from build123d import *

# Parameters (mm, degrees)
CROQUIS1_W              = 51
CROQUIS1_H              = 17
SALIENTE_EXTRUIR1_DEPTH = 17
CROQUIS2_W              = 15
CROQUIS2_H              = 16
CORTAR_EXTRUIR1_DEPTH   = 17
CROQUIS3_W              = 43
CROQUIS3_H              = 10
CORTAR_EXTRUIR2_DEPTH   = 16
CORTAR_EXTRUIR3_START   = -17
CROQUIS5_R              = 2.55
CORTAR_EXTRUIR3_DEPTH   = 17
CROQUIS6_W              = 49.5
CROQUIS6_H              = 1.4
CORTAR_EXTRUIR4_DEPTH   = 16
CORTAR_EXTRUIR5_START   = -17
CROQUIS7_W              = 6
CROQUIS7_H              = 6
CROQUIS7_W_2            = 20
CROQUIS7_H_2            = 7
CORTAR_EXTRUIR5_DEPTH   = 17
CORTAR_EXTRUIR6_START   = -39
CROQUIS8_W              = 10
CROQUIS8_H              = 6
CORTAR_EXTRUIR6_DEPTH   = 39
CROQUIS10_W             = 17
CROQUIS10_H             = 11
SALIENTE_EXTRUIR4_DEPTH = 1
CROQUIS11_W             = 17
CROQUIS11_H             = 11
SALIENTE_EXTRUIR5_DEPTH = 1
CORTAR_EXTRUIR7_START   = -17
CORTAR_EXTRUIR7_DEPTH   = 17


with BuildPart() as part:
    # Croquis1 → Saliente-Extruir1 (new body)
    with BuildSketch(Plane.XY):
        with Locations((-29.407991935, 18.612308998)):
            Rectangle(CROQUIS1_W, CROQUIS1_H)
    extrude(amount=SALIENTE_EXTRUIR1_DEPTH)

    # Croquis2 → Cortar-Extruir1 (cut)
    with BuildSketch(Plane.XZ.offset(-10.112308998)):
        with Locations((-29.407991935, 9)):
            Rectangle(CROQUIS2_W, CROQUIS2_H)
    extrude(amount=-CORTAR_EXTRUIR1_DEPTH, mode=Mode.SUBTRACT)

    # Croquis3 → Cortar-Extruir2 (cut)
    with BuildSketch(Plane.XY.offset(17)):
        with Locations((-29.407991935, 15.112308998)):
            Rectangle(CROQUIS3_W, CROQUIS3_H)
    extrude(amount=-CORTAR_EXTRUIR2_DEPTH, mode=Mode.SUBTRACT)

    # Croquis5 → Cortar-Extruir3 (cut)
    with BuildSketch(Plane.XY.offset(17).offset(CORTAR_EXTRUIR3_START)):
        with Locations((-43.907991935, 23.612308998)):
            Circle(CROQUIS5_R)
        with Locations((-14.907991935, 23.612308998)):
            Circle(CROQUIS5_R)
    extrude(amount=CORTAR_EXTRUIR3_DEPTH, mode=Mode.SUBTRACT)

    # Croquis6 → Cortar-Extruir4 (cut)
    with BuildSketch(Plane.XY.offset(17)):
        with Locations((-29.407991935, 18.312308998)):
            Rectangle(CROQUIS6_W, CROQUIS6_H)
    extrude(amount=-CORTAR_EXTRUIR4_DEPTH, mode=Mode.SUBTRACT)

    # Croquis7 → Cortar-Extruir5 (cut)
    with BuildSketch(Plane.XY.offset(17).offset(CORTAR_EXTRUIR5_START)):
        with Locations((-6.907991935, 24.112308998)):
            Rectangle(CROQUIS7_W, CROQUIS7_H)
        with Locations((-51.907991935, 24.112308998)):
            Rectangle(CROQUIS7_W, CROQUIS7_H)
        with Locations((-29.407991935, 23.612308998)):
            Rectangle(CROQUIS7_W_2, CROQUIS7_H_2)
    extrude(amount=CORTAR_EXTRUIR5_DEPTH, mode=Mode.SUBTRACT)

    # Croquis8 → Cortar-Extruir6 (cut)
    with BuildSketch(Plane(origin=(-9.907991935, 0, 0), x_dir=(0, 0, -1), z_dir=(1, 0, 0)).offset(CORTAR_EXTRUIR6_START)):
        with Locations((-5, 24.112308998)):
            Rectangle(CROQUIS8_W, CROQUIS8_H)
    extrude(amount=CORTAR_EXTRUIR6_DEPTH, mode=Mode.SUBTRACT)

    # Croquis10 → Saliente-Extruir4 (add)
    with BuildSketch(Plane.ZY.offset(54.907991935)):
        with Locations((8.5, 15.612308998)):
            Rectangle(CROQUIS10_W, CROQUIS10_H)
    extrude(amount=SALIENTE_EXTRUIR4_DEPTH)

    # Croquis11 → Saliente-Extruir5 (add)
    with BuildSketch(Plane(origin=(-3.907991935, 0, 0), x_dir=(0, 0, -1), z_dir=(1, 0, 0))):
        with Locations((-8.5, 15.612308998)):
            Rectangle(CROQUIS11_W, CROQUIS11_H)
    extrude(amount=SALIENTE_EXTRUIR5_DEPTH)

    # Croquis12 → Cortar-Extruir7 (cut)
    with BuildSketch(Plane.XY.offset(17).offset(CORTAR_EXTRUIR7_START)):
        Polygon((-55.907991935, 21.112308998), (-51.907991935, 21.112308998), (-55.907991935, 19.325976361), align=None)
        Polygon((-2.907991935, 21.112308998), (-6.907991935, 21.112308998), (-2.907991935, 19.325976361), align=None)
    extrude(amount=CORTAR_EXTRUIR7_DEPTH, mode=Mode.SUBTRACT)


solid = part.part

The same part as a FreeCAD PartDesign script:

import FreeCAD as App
import Part
import Sketcher
from FreeCAD import Vector


def add_polygon(sketch, points):
    """Adds a closed chain of lines whose ends are joined by coincident constraints."""
    first, n = sketch.GeometryCount, len(points)
    for a, b in zip(points, points[1:] + points[:1]):
        sketch.addGeometry(Part.LineSegment(App.Vector(*a, 0), App.Vector(*b, 0)), False)
    for i in range(n):
        sketch.addConstraint(Sketcher.Constraint("Coincident", first + i, 2, first + (i + 1) % n, 1))

doc = App.newDocument("Part")
params = doc.addObject("Spreadsheet::Sheet", "Params")
for row, (alias, value) in enumerate([
    ("sketch1_width", "51 mm"),
    ("sketch1_height", "17 mm"),
    ("pad1_length", "17 mm"),
    ("sketch2_width", "15 mm"),
    ("sketch2_height", "16 mm"),
    ("pocket1_length", "17 mm"),
    ("sketch3_width", "43 mm"),
    ("sketch3_height", "10 mm"),
    ("pocket2_length", "16 mm"),
    ("sketch4_diameter", "5.1 mm"),
    ("pocket3_length", "17 mm"),
    ("sketch5_width", "49.5 mm"),
    ("sketch5_height", "1.4 mm"),
    ("pocket4_length", "16 mm"),
    ("sketch6_width", "6 mm"),
    ("sketch6_width2", "20 mm"),
    ("sketch6_height", "7 mm"),
    ("pocket5_length", "17 mm"),
    ("sketch7_width", "6 mm"),
    ("sketch7_height", "10 mm"),
    ("pocket6_length", "39 mm"),
    ("sketch8_width", "11 mm"),
    ("sketch8_height", "17 mm"),
    ("pad2_length", "1 mm"),
    ("sketch9_width", "11 mm"),
    ("sketch9_height", "17 mm"),
    ("pad3_length", "1 mm"),
    ("sketch10_width", "4 mm"),
    ("pocket7_length", "17 mm"),
], start=1):
    params.set(f"A{row}", alias)
    params.set(f"B{row}", "=" + value)
    params.setAlias(f"B{row}", alias)

body = doc.addObject("PartDesign::Body", "Body")

# Sketch on XY plane
sketch1 = body.newObject("Sketcher::SketchObject", "Sketch")
sketch1.AttachmentSupport = (doc.getObject("XY_Plane"), [""])
sketch1.MapMode = "FlatFace"
add_polygon(sketch1, [(-55, 27), (-55, 10), (-4, 10), (-4, 27)])  # lines 0-3
sketch1.addConstraint(Sketcher.Constraint("Vertical", 0))
sketch1.addConstraint(Sketcher.Constraint("Horizontal", 1))
sketch1.addConstraint(Sketcher.Constraint("Vertical", 2))
sketch1.addConstraint(Sketcher.Constraint("Horizontal", 3))
sketch1.addConstraint(Sketcher.Constraint("DistanceX", 1, 1, 1, 2, 51.0))
sketch1.addConstraint(Sketcher.Constraint("DistanceY", 0, 2, 0, 1, 17.0))
sketch1.addConstraint(Sketcher.Constraint("DistanceX", 0, 2, -1, 1, 54.907992))
sketch1.addConstraint(Sketcher.Constraint("DistanceY", -1, 1, 0, 2, 10.112309))
sketch1.setExpression("Constraints[8]", "Params.sketch1_width")
sketch1.setExpression("Constraints[9]", "Params.sketch1_height")
pad1 = body.newObject("PartDesign::Pad", "Pad")
pad1.Profile = sketch1
pad1.setExpression("Length", "Params.pad1_length")

# Sketch on XZ plane
sketch2 = body.newObject("Sketcher::SketchObject", "Sketch001")
sketch2.AttachmentSupport = (doc.getObject("XZ_Plane"), [""])
sketch2.MapMode = "FlatFace"
sketch2.AttachmentOffset = App.Placement(Vector(0, 0, -10.112309), App.Rotation())
add_polygon(sketch2, [(-37, 17), (-37, 1), (-22, 1), (-22, 17)])  # lines 0-3
sketch2.addConstraint(Sketcher.Constraint("Vertical", 0))
sketch2.addConstraint(Sketcher.Constraint("Horizontal", 1))
sketch2.addConstraint(Sketcher.Constraint("Vertical", 2))
sketch2.addConstraint(Sketcher.Constraint("Horizontal", 3))
sketch2.addConstraint(Sketcher.Constraint("DistanceX", 1, 1, 1, 2, 15.0))
sketch2.addConstraint(Sketcher.Constraint("DistanceY", 0, 2, 0, 1, 16.0))
sketch2.addConstraint(Sketcher.Constraint("DistanceY", -1, 1, 0, 2, 1.0))
sketch2.addConstraint(Sketcher.Constraint("DistanceX", 0, 2, -1, 1, 36.907992))
sketch2.setExpression("Constraints[8]", "Params.sketch2_width")
sketch2.setExpression("Constraints[9]", "Params.sketch2_height")
pocket1 = body.newObject("PartDesign::Pocket", "Pocket")
pocket1.Profile = sketch2
pocket1.setExpression("Length", "Params.pocket1_length")

# Sketch on XY plane
sketch3 = body.newObject("Sketcher::SketchObject", "Sketch002")
sketch3.AttachmentSupport = (doc.getObject("XY_Plane"), [""])
sketch3.MapMode = "FlatFace"
sketch3.AttachmentOffset = App.Placement(Vector(0, 0, 17), App.Rotation())
add_polygon(sketch3, [(-51, 20), (-51, 10), (-8, 10), (-8, 20)])  # lines 0-3
sketch3.addConstraint(Sketcher.Constraint("Vertical", 0))
sketch3.addConstraint(Sketcher.Constraint("Horizontal", 1))
sketch3.addConstraint(Sketcher.Constraint("Vertical", 2))
sketch3.addConstraint(Sketcher.Constraint("Horizontal", 3))
sketch3.addConstraint(Sketcher.Constraint("DistanceX", 1, 1, 1, 2, 43.0))
sketch3.addConstraint(Sketcher.Constraint("DistanceY", 0, 2, 0, 1, 10.0))
sketch3.addConstraint(Sketcher.Constraint("DistanceX", 0, 2, -1, 1, 50.907992))
sketch3.addConstraint(Sketcher.Constraint("DistanceY", -1, 1, 0, 2, 10.112309))
sketch3.setExpression("Constraints[8]", "Params.sketch3_width")
sketch3.setExpression("Constraints[9]", "Params.sketch3_height")
pocket2 = body.newObject("PartDesign::Pocket", "Pocket001")
pocket2.Profile = sketch3
pocket2.setExpression("Length", "Params.pocket2_length")

# Sketch on XY plane
sketch4 = body.newObject("Sketcher::SketchObject", "Sketch003")
sketch4.AttachmentSupport = (doc.getObject("XY_Plane"), [""])
sketch4.MapMode = "FlatFace"
sketch4.addGeometry(Part.Circle(Vector(-43.9, 23.6, 0), Vector(0, 0, 1), 2.5), False)
sketch4.addGeometry(Part.Circle(Vector(-14.9, 23.6, 0), Vector(0, 0, 1), 2.5), False)
sketch4.addConstraint(Sketcher.Constraint("Equal", 0, 1))
sketch4.addConstraint(Sketcher.Constraint("Horizontal", 0, 3, 1, 3))
sketch4.addConstraint(Sketcher.Constraint("Diameter", 0, 5.1))
sketch4.addConstraint(Sketcher.Constraint("DistanceX", 0, 3, 1, 3, 29.0))
sketch4.addConstraint(Sketcher.Constraint("DistanceX", 0, 3, -1, 1, 43.907992))
sketch4.addConstraint(Sketcher.Constraint("DistanceY", -1, 1, 0, 3, 23.612309))
sketch4.setExpression("Constraints[2]", "Params.sketch4_diameter")
pocket3 = body.newObject("PartDesign::Pocket", "Pocket002")
pocket3.Profile = sketch4
pocket3.setExpression("Length", "Params.pocket3_length")
pocket3.Reversed = True

# Sketch on XY plane
sketch5 = body.newObject("Sketcher::SketchObject", "Sketch004")
sketch5.AttachmentSupport = (doc.getObject("XY_Plane"), [""])
sketch5.MapMode = "FlatFace"
sketch5.AttachmentOffset = App.Placement(Vector(0, 0, 17), App.Rotation())
add_polygon(sketch5, [(-54.2, 19), (-54.2, 17.6), (-4.7, 17.6), (-4.7, 19)])  # lines 0-3
sketch5.addConstraint(Sketcher.Constraint("Vertical", 0))
sketch5.addConstraint(Sketcher.Constraint("Horizontal", 1))
sketch5.addConstraint(Sketcher.Constraint("Vertical", 2))
sketch5.addConstraint(Sketcher.Constraint("Horizontal", 3))
sketch5.addConstraint(Sketcher.Constraint("DistanceX", 1, 1, 1, 2, 49.5))
sketch5.addConstraint(Sketcher.Constraint("DistanceY", 0, 2, 0, 1, 1.4))
sketch5.addConstraint(Sketcher.Constraint("DistanceX", 0, 2, -1, 1, 54.157992))
sketch5.addConstraint(Sketcher.Constraint("DistanceY", -1, 1, 0, 2, 17.612309))
sketch5.setExpression("Constraints[8]", "Params.sketch5_width")
sketch5.setExpression("Constraints[9]", "Params.sketch5_height")
pocket4 = body.newObject("PartDesign::Pocket", "Pocket003")
pocket4.Profile = sketch5
pocket4.setExpression("Length", "Params.pocket4_length")

# Sketch on XY plane
sketch6 = body.newObject("Sketcher::SketchObject", "Sketch005")
sketch6.AttachmentSupport = (doc.getObject("XY_Plane"), [""])
sketch6.MapMode = "FlatFace"
add_polygon(sketch6, [(-10, 27), (-10, 21), (-4, 21), (-4, 27)])  # lines 0-3
add_polygon(sketch6, [(-55, 27), (-55, 21), (-49, 21), (-49, 27)])  # lines 4-7
add_polygon(sketch6, [(-39, 27), (-39, 20), (-19, 20), (-19, 27)])  # lines 8-11
sketch6.addConstraint(Sketcher.Constraint("Vertical", 0))
sketch6.addConstraint(Sketcher.Constraint("Horizontal", 1))
sketch6.addConstraint(Sketcher.Constraint("Vertical", 2))
sketch6.addConstraint(Sketcher.Constraint("Horizontal", 3))
sketch6.addConstraint(Sketcher.Constraint("Vertical", 4))
sketch6.addConstraint(Sketcher.Constraint("Horizontal", 5))
sketch6.addConstraint(Sketcher.Constraint("Vertical", 6))
sketch6.addConstraint(Sketcher.Constraint("Horizontal", 7))
sketch6.addConstraint(Sketcher.Constraint("Vertical", 8))
sketch6.addConstraint(Sketcher.Constraint("Horizontal", 9))
sketch6.addConstraint(Sketcher.Constraint("Vertical", 10))
sketch6.addConstraint(Sketcher.Constraint("Horizontal", 11))
sketch6.addConstraint(Sketcher.Constraint("Horizontal", 1, 2, 4, 2))
sketch6.addConstraint(Sketcher.Constraint("Horizontal", 3, 2, 6, 2))
sketch6.addConstraint(Sketcher.Constraint("Horizontal", 7, 2, 10, 2))
sketch6.addConstraint(Sketcher.Constraint("Equal", 3, 5))
sketch6.addConstraint(Sketcher.Constraint("Equal", 7, 0))
sketch6.addConstraint(Sketcher.Constraint("DistanceX", 1, 1, 1, 2, 6.0))
sketch6.addConstraint(Sketcher.Constraint("DistanceX", 9, 1, 9, 2, 20.0))
sketch6.addConstraint(Sketcher.Constraint("DistanceY", 8, 2, 8, 1, 7.0))
sketch6.addConstraint(Sketcher.Constraint("DistanceX", 4, 2, 0, 2, 45.0))
sketch6.addConstraint(Sketcher.Constraint("DistanceX", 5, 2, 8, 2, 9.5))
sketch6.addConstraint(Sketcher.Constraint("DistanceX", 0, 2, -1, 1, 9.907992))
sketch6.addConstraint(Sketcher.Constraint("DistanceY", -1, 1, 0, 2, 21.112309))
sketch6.setExpression("Constraints[29]", "Params.sketch6_width")
sketch6.setExpression("Constraints[30]", "Params.sketch6_width2")
sketch6.setExpression("Constraints[31]", "Params.sketch6_height")
pocket5 = body.newObject("PartDesign::Pocket", "Pocket004")
pocket5.Profile = sketch6
pocket5.setExpression("Length", "Params.pocket5_length")
pocket5.Reversed = True

# Sketch on YZ plane
sketch7 = body.newObject("Sketcher::SketchObject", "Sketch006")
sketch7.AttachmentSupport = (doc.getObject("YZ_Plane"), [""])
sketch7.MapMode = "FlatFace"
sketch7.AttachmentOffset = App.Placement(Vector(0, 0, -48.907992), App.Rotation())
add_polygon(sketch7, [(27, 10), (21, 10), (21, 0), (27, 0)])  # lines 0-3
sketch7.addConstraint(Sketcher.Constraint("Horizontal", 0))
sketch7.addConstraint(Sketcher.Constraint("Vertical", 1))
sketch7.addConstraint(Sketcher.Constraint("Horizontal", 2))
sketch7.addConstraint(Sketcher.Constraint("Vertical", 3))
sketch7.addConstraint(Sketcher.Constraint("PointOnObject", 1, 2, -1))
sketch7.addConstraint(Sketcher.Constraint("DistanceX", 0, 2, 0, 1, 6.0))
sketch7.addConstraint(Sketcher.Constraint("DistanceY", 1, 2, 1, 1, 10.0))
sketch7.addConstraint(Sketcher.Constraint("DistanceX", -1, 1, 0, 2, 21.112309))
sketch7.setExpression("Constraints[9]", "Params.sketch7_width")
sketch7.setExpression("Constraints[10]", "Params.sketch7_height")
pocket6 = body.newObject("PartDesign::Pocket", "Pocket005")
pocket6.Profile = sketch7
pocket6.setExpression("Length", "Params.pocket6_length")
pocket6.Reversed = True

# Sketch on YZ plane
sketch8 = body.newObject("Sketcher::SketchObject", "Sketch007")
sketch8.AttachmentSupport = (doc.getObject("YZ_Plane"), [""])
sketch8.MapMode = "FlatFace"
sketch8.AttachmentOffset = App.Placement(Vector(0, 0, -54.907992), App.Rotation())
add_polygon(sketch8, [(21, 0), (10, 0), (10, 17), (21, 17)])  # lines 0-3
sketch8.addConstraint(Sketcher.Constraint("Horizontal", 0))
sketch8.addConstraint(Sketcher.Constraint("Vertical", 1))
sketch8.addConstraint(Sketcher.Constraint("Horizontal", 2))
sketch8.addConstraint(Sketcher.Constraint("Vertical", 3))
sketch8.addConstraint(Sketcher.Constraint("PointOnObject", 0, 2, -1))
sketch8.addConstraint(Sketcher.Constraint("DistanceX", 0, 2, 0, 1, 11.0))
sketch8.addConstraint(Sketcher.Constraint("DistanceY", 1, 1, 1, 2, 17.0))
sketch8.addConstraint(Sketcher.Constraint("DistanceX", -1, 1, 0, 2, 10.112309))
sketch8.setExpression("Constraints[9]", "Params.sketch8_width")
sketch8.setExpression("Constraints[10]", "Params.sketch8_height")
pad2 = body.newObject("PartDesign::Pad", "Pad001")
pad2.Profile = sketch8
pad2.setExpression("Length", "Params.pad2_length")
pad2.Reversed = True

# Sketch on YZ plane
sketch9 = body.newObject("Sketcher::SketchObject", "Sketch008")
sketch9.AttachmentSupport = (doc.getObject("YZ_Plane"), [""])
sketch9.MapMode = "FlatFace"
sketch9.AttachmentOffset = App.Placement(Vector(0, 0, -3.907992), App.Rotation())
add_polygon(sketch9, [(21, 17), (10, 17), (10, 0), (21, 0)])  # lines 0-3
sketch9.addConstraint(Sketcher.Constraint("Horizontal", 0))
sketch9.addConstraint(Sketcher.Constraint("Vertical", 1))
sketch9.addConstraint(Sketcher.Constraint("Horizontal", 2))
sketch9.addConstraint(Sketcher.Constraint("Vertical", 3))
sketch9.addConstraint(Sketcher.Constraint("PointOnObject", 1, 2, -1))
sketch9.addConstraint(Sketcher.Constraint("DistanceX", 0, 2, 0, 1, 11.0))
sketch9.addConstraint(Sketcher.Constraint("DistanceY", 1, 2, 1, 1, 17.0))
sketch9.addConstraint(Sketcher.Constraint("DistanceX", -1, 1, 0, 2, 10.112309))
sketch9.setExpression("Constraints[9]", "Params.sketch9_width")
sketch9.setExpression("Constraints[10]", "Params.sketch9_height")
pad3 = body.newObject("PartDesign::Pad", "Pad002")
pad3.Profile = sketch9
pad3.setExpression("Length", "Params.pad3_length")

# Sketch on XY plane
sketch10 = body.newObject("Sketcher::SketchObject", "Sketch009")
sketch10.AttachmentSupport = (doc.getObject("XY_Plane"), [""])
sketch10.MapMode = "FlatFace"
add_polygon(sketch10, [(-51.9, 21.1), (-55.9, 21.1), (-55.9, 19.3)])  # lines 0-2
add_polygon(sketch10, [(-2.9, 21.1), (-6.9, 21.1), (-2.9, 19.3)])  # lines 3-5
sketch10.addConstraint(Sketcher.Constraint("Horizontal", 0))
sketch10.addConstraint(Sketcher.Constraint("Vertical", 1))
sketch10.addConstraint(Sketcher.Constraint("Horizontal", 3))
sketch10.addConstraint(Sketcher.Constraint("Vertical", 5))
sketch10.addConstraint(Sketcher.Constraint("Horizontal", 2, 2, 3, 2))
sketch10.addConstraint(Sketcher.Constraint("Horizontal", 1, 2, 4, 2))
sketch10.addConstraint(Sketcher.Constraint("Equal", 0, 3))
sketch10.addConstraint(Sketcher.Constraint("DistanceX", 0, 2, 0, 1, 4.0))
sketch10.addConstraint(Sketcher.Constraint("DistanceX", 2, 2, 3, 2, 45.0))
sketch10.addConstraint(Sketcher.Constraint("Distance", 2, 4.380752))
sketch10.addConstraint(Sketcher.Constraint("DistanceX", 0, 2, -1, 1, 55.907992))
sketch10.addConstraint(Sketcher.Constraint("DistanceY", -1, 1, 0, 2, 21.112309))
sketch10.setExpression("Constraints[13]", "Params.sketch10_width")
pocket7 = body.newObject("PartDesign::Pocket", "Pocket006")
pocket7.Profile = sketch10
pocket7.setExpression("Length", "Params.pocket7_length")
pocket7.Reversed = True

doc.recompute()
